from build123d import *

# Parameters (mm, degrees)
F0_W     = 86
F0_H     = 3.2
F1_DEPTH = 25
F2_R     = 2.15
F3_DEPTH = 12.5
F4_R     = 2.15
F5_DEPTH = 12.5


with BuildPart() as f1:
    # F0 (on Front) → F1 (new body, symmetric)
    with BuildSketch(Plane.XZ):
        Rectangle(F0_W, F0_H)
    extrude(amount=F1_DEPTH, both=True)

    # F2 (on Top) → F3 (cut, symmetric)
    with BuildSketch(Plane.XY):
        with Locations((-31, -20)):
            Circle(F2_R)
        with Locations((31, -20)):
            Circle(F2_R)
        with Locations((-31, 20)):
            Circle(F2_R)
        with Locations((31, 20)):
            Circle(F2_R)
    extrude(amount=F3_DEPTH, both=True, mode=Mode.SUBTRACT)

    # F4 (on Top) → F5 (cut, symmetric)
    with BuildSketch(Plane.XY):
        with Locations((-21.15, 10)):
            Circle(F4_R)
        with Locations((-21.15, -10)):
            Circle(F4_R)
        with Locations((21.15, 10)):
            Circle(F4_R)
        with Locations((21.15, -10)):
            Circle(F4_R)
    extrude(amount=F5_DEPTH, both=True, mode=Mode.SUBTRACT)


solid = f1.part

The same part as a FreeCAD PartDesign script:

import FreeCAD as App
import Part
import Sketcher
from FreeCAD import Vector
Q = App.Units.Quantity

doc = App.newDocument("Part")
body = doc.addObject("PartDesign::Body", "Body")

sketch1 = body.newObject("Sketcher::SketchObject", "Sketch")
sketch1.AttachmentSupport = (doc.getObject("XZ_Plane"), [""])
sketch1.MapMode = "FlatFace"
sketch1.addGeometry([
    Part.LineSegment(Vector(-43, 1.6, 0), Vector(-43, -1.6, 0)),
    Part.LineSegment(Vector(-43, -1.6, 0), Vector(43, -1.6, 0)),
    Part.LineSegment(Vector(43, -1.6, 0), Vector(43, 1.6, 0)),
    Part.LineSegment(Vector(43, 1.6, 0), Vector(-43, 1.6, 0)),
], False)
sketch1.addConstraint([
    Sketcher.Constraint("Coincident", 0, 2, 1, 1),
    Sketcher.Constraint("Coincident", 1, 2, 2, 1),
    Sketcher.Constraint("Coincident", 2, 2, 3, 1),
    Sketcher.Constraint("Coincident", 3, 2, 0, 1),
    Sketcher.Constraint("Vertical", 0),
    Sketcher.Constraint("Horizontal", 1),
    Sketcher.Constraint("Vertical", 2),
    Sketcher.Constraint("Horizontal", 3),
    Sketcher.Constraint("Symmetric", 0, 2, 2, 2, -1, 1),
    Sketcher.Constraint("DistanceX", 1, 1, 1, 2, Q("86 mm")),
    Sketcher.Constraint("DistanceY", 0, 2, 0, 1, Q("3.2 mm")),
])
pad1 = body.newObject("PartDesign::Pad", "Pad")
pad1.Profile = sketch1
pad1.Length = 50
pad1.Midplane = True

sketch2 = body.newObject("Sketcher::SketchObject", "Sketch001")
sketch2.AttachmentSupport = (doc.getObject("XY_Plane"), [""])
sketch2.MapMode = "FlatFace"
sketch2.addGeometry([
    Part.Circle(Vector(-31, -20, 0), Vector(0, 0, 1), 2.1),
    Part.Circle(Vector(31, -20, 0), Vector(0, 0, 1), 2.1),
    Part.Circle(Vector(-31, 20, 0), Vector(0, 0, 1), 2.1),
    Part.Circle(Vector(31, 20, 0), Vector(0, 0, 1), 2.1),
], False)
sketch2.addConstraint([
    Sketcher.Constraint("Equal", 0, 1),
    Sketcher.Constraint("Equal", 1, 2),
    Sketcher.Constraint("Equal", 2, 3),
    Sketcher.Constraint("Symmetric", 1, 3, 2, 3, -1, 1),
    Sketcher.Constraint("Symmetric", 0, 3, 3, 3, -1, 1),
    Sketcher.Constraint("Symmetric", 0, 3, 1, 3, -2),
    Sketcher.Constraint("Diameter", 0, Q("4.3 mm")),
    Sketcher.Constraint("DistanceX", 0, 3, -1, 1, Q("31 mm")),
    Sketcher.Constraint("DistanceY", 0, 3, -1, 1, Q("20 mm")),
])
pocket1 = body.newObject("PartDesign::Pocket", "Pocket")
pocket1.Profile = sketch2
pocket1.Length = 25
pocket1.Midplane = True

sketch3 = body.newObject("Sketcher::SketchObject", "Sketch002")
sketch3.AttachmentSupport = (doc.getObject("XY_Plane"), [""])
sketch3.MapMode = "FlatFace"
sketch3.addGeometry([
    Part.Circle(Vector(-21.1, 10, 0), Vector(0, 0, 1), 2.1),
    Part.Circle(Vector(-21.1, -10, 0), Vector(0, 0, 1), 2.1),
    Part.Circle(Vector(21.1, 10, 0), Vector(0, 0, 1), 2.1),
    Part.Circle(Vector(21.1, -10, 0), Vector(0, 0, 1), 2.1),
], False)
sketch3.addConstraint([
    Sketcher.Constraint("Equal", 0, 1),
    Sketcher.Constraint("Equal", 1, 2),
    Sketcher.Constraint("Equal", 2, 3),
    Sketcher.Constraint("Symmetric", 1, 3, 2, 3, -1, 1),
    Sketcher.Constraint("Symmetric", 0, 3, 3, 3, -1, 1),
    Sketcher.Constraint("Symmetric", 0, 3, 2, 3, -2),
    Sketcher.Constraint("Diameter", 0, Q("4.3 mm")),
    Sketcher.Constraint("DistanceY", -1, 1, 0, 3, Q("10 mm")),
    Sketcher.Constraint("DistanceX", 0, 3, 2, 3, Q("42.3 mm")),
])
pocket2 = body.newObject("PartDesign::Pocket", "Pocket001")
pocket2.Profile = sketch3
pocket2.Length = 25
pocket2.Midplane = True

doc.recompute()
